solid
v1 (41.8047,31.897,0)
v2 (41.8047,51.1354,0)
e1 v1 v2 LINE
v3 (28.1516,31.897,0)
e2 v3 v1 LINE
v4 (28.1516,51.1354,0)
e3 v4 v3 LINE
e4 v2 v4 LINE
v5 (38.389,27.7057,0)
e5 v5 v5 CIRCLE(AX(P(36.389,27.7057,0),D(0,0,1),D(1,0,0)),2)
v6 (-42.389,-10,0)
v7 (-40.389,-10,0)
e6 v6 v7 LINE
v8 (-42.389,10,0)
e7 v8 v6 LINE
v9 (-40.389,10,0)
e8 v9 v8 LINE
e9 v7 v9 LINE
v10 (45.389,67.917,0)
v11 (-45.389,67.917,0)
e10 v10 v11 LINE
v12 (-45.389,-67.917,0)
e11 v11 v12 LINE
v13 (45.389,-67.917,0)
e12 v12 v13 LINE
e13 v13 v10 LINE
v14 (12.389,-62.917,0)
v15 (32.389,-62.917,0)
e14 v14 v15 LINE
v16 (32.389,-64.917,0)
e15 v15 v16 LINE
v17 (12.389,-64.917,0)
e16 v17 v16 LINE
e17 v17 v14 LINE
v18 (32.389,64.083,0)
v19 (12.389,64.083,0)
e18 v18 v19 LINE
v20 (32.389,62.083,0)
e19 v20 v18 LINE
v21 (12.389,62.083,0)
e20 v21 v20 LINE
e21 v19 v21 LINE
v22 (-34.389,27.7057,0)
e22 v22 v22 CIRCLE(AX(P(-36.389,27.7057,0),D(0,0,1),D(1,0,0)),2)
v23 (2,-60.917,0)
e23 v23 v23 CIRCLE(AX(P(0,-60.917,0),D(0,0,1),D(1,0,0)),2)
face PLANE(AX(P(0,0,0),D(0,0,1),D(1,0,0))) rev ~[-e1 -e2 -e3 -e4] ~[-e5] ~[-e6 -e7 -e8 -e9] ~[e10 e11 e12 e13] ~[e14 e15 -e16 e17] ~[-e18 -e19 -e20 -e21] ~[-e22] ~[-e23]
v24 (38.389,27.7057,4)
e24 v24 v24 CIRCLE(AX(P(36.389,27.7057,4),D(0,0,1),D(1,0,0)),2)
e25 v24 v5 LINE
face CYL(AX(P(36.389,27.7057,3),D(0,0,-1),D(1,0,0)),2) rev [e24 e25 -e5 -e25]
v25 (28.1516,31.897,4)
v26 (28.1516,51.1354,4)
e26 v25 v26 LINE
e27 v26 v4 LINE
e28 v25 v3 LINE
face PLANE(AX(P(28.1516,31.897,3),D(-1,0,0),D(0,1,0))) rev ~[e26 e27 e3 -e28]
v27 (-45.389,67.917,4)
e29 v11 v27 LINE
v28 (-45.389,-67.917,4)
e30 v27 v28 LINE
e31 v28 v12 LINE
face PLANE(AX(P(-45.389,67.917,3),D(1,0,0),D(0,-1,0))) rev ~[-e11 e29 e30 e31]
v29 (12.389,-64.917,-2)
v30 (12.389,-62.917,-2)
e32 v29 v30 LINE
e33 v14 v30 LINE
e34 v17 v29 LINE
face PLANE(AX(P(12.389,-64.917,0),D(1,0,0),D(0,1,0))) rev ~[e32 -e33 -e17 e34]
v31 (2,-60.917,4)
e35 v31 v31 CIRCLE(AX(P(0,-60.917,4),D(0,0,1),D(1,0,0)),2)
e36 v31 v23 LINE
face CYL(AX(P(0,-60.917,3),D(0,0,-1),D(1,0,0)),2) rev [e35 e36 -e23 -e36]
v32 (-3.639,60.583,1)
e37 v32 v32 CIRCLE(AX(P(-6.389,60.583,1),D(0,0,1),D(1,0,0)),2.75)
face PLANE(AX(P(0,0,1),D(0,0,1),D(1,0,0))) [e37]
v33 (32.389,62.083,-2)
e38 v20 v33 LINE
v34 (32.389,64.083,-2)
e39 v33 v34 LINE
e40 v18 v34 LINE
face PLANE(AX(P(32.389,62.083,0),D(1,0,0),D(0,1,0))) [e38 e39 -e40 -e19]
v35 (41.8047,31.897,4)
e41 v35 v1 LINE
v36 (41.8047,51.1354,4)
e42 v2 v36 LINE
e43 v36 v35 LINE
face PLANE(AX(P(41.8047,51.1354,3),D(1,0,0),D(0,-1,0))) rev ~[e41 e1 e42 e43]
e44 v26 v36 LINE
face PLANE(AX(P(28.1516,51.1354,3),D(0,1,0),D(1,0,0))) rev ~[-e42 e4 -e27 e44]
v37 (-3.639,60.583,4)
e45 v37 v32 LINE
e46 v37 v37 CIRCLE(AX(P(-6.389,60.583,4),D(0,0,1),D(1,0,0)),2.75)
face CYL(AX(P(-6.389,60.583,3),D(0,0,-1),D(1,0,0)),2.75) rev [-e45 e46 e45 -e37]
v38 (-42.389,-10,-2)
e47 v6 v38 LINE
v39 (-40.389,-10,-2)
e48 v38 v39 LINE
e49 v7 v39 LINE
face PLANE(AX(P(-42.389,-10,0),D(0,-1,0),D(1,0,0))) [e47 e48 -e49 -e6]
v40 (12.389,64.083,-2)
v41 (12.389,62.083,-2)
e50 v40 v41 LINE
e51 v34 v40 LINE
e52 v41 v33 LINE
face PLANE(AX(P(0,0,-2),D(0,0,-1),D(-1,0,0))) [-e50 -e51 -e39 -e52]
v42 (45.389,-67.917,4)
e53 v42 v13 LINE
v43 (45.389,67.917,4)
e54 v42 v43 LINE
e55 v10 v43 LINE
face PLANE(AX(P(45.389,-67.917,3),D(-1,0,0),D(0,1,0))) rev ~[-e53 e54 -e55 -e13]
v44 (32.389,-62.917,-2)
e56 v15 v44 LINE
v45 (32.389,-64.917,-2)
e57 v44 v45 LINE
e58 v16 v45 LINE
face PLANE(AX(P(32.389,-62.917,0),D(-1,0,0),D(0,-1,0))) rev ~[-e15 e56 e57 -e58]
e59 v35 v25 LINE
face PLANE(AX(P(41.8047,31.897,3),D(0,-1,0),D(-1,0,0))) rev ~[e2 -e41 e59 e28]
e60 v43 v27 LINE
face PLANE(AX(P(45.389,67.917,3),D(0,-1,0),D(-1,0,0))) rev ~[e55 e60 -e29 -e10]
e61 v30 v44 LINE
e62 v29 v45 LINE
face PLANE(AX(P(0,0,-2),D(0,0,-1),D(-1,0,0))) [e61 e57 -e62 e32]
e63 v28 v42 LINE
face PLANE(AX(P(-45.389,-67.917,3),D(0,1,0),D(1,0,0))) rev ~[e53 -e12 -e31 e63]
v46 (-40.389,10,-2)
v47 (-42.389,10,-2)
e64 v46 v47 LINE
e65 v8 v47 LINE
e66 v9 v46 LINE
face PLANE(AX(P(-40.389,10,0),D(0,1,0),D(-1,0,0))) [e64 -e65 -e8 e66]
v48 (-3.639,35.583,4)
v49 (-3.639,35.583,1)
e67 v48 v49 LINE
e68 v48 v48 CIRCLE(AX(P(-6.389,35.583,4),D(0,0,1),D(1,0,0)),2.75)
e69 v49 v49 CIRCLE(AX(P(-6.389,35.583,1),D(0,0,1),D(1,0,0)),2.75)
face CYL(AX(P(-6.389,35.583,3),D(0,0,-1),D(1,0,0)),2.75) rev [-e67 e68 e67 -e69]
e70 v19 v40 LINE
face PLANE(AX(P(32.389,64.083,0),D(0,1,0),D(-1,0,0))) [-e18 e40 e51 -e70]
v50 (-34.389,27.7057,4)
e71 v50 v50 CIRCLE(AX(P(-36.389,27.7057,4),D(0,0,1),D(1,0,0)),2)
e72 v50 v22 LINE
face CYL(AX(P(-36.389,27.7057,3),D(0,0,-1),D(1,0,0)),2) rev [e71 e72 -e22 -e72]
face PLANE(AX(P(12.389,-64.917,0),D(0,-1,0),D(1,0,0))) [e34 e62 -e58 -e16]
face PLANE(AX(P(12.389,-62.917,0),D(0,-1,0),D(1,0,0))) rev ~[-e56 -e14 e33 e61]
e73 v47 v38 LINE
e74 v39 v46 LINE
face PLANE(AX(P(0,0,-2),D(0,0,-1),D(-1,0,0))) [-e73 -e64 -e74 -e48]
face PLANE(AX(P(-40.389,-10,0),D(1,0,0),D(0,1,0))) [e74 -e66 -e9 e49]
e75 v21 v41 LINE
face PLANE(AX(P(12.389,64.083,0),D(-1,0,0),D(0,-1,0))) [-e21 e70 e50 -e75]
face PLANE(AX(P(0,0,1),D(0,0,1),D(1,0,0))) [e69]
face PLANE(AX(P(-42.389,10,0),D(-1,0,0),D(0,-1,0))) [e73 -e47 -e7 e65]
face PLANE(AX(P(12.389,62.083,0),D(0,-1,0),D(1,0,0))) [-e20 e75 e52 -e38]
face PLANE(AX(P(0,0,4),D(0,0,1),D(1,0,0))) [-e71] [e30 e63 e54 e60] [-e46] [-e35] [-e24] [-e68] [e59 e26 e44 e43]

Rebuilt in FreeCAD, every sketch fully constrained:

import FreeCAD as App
import Part
import Sketcher

V = App.Vector


def add_polygon(sketch, points):
    """Adds a closed chain of lines whose ends are joined by coincident constraints."""
    first, n = sketch.GeometryCount, len(points)
    for a, b in zip(points, points[1:] + points[:1]):
        sketch.addGeometry(Part.LineSegment(App.Vector(*a, 0), App.Vector(*b, 0)), False)
    for i in range(n):
        sketch.addConstraint(Sketcher.Constraint("Coincident", first + i, 2, first + (i + 1) % n, 1))

doc = App.newDocument("Part")
body = doc.addObject("PartDesign::Body", "Body")

sketch1 = body.newObject("Sketcher::SketchObject", "Sketch")
sketch1.AttachmentSupport = (doc.getObject("XY_Plane"), [""])
sketch1.MapMode = "FlatFace"
add_polygon(sketch1, [(-45.4, -67.9), (45.4, -67.9), (45.4, 67.9), (-45.4, 67.9)])
add_polygon(sketch1, [(28.2, 51.1), (41.8, 51.1), (41.8, 31.9), (28.2, 31.9)])
sketch1.addGeometry(Part.Circle(V(0, -60.9, 0), V(0, 0, 1), 2), False)
sketch1.addGeometry(Part.Circle(V(-36.4, 27.7, 0), V(0, 0, 1), 2), False)
sketch1.addGeometry(Part.Circle(V(36.4, 27.7, 0), V(0, 0, 1), 2), False)
sketch1.addConstraint([
    Sketcher.Constraint("Horizontal", 0),
    Sketcher.Constraint("Vertical", 1),
    Sketcher.Constraint("Horizontal", 2),
    Sketcher.Constraint("Vertical", 3),
    Sketcher.Constraint("Horizontal", 4),
    Sketcher.Constraint("Vertical", 5),
    Sketcher.Constraint("Horizontal", 6),
    Sketcher.Constraint("Vertical", 7),
    Sketcher.Constraint("Equal", 8, 9),
    Sketcher.Constraint("Equal", 9, 10),
    Sketcher.Constraint("Symmetric", 0, 2, 2, 2, -1, 1),
    Sketcher.Constraint("Symmetric", 9, 3, 10, 3, -2),
    Sketcher.Constraint("PointOnObject", 8, 3, -2),
    Sketcher.Constraint("Diameter", 8, 4.0),
    Sketcher.Constraint("DistanceY", 0, 2, 8, 3, 7.0),
    Sketcher.Constraint("DistanceX", 10, 3, 0, 2, 9.0),
    Sketcher.Constraint("DistanceX", 0, 1, 0, 2, 90.778),
    Sketcher.Constraint("DistanceX", 4, 1, 4, 2, 13.653),
    Sketcher.Constraint("DistanceY", 1, 1, 1, 2, 135.834),
    Sketcher.Constraint("DistanceY", 5, 2, 1, 2, 36.02),
    Sketcher.Constraint("DistanceY", 5, 2, 5, 1, 19.2384),
    Sketcher.Constraint("DistanceY", -1, 1, 9, 3, 27.7057),
    Sketcher.Constraint("DistanceX", -1, 1, 4, 2, 41.8047),
])
pad1 = body.newObject("PartDesign::Pad", "Pad")
pad1.Profile = sketch1
pad1.Length = 3

sketch2 = body.newObject("Sketcher::SketchObject", "Sketch001")
sketch2.AttachmentSupport = (doc.getObject("XY_Plane"), [""])
sketch2.MapMode = "FlatFace"
add_polygon(sketch2, [(32.4, -64.9), (12.4, -64.9), (12.4, -62.9), (32.4, -62.9)])
add_polygon(sketch2, [(-40.4, -10), (-42.4, -10), (-42.4, 10), (-40.4, 10)])
add_polygon(sketch2, [(12.4, 64.1), (32.4, 64.1), (32.4, 62.1), (12.4, 62.1)])
sketch2.addConstraint([
    Sketcher.Constraint("Horizontal", 0),
    Sketcher.Constraint("Vertical", 1),
    Sketcher.Constraint("Horizontal", 2),
    Sketcher.Constraint("Vertical", 3),
    Sketcher.Constraint("Horizontal", 4),
    Sketcher.Constraint("Vertical", 5),
    Sketcher.Constraint("Horizontal", 6),
    Sketcher.Constraint("Vertical", 7),
    Sketcher.Constraint("Horizontal", 8),
    Sketcher.Constraint("Vertical", 9),
    Sketcher.Constraint("Horizontal", 10),
    Sketcher.Constraint("Vertical", 11),
    Sketcher.Constraint("Vertical", 3, 2, 8, 2),
    Sketcher.Constraint("Vertical", 1, 2, 10, 2),
    Sketcher.Constraint("Equal", 6, 1),
    Sketcher.Constraint("Equal", 10, 5),
    Sketcher.Constraint("Equal", 3, 9),
    Sketcher.Constraint("DistanceX", 0, 2, 0, 1, 20.0),
    Sketcher.Constraint("DistanceX", 4, 2, 4, 1, 2.0),
    Sketcher.Constraint("DistanceY", 4, 2, -1, 1, 10.0),
    Sketcher.Constraint("DistanceY", 2, 2, 8, 2, 127.0),
    Sketcher.Constraint("DistanceX", -1, 1, 0, 2, 12.389),
    Sketcher.Constraint("DistanceY", 0, 2, -1, 1, 64.917),
    Sketcher.Constraint("DistanceX", 4, 2, -1, 1, 42.389),
])
pad2 = body.newObject("PartDesign::Pad", "Pad001")
pad2.Profile = sketch2
pad2.Length = 2
pad2.Reversed = True

sketch3 = body.newObject("Sketcher::SketchObject", "Sketch002")
sketch3.AttachmentSupport = (doc.getObject("XY_Plane"), [""])
sketch3.MapMode = "FlatFace"
sketch3.AttachmentOffset = App.Placement(V(0, 0, 3), App.Rotation())
sketch3.addGeometry([
    Part.Circle(V(-6.4, 60.6, 0), V(0, 0, 1), 2.8),
    Part.Circle(V(-6.4, 35.6, 0), V(0, 0, 1), 2.8),
], False)
sketch3.addConstraint([
    Sketcher.Constraint("Equal", 0, 1),
    Sketcher.Constraint("Vertical", 0, 3, 1, 3),
    Sketcher.Constraint("Diameter", 0, 5.5),
    Sketcher.Constraint("DistanceY", 1, 3, 0, 3, 25.0),
    Sketcher.Constraint("DistanceX", 0, 3, -1, 1, 6.389),
    Sketcher.Constraint("DistanceY", -1, 1, 0, 3, 60.583),
])
pocket1 = body.newObject("PartDesign::Pocket", "Pocket")
pocket1.Profile = sketch3
pocket1.Length = 2

sketch4 = body.newObject("Sketcher::SketchObject", "Sketch003")
sketch4.AttachmentSupport = (doc.getObject("XY_Plane"), [""])
sketch4.MapMode = "FlatFace"
sketch4.AttachmentOffset = App.Placement(V(0, 0, 3), App.Rotation())
add_polygon(sketch4, [(45.4, -67.9), (45.4, 67.9), (-45.4, 67.9), (-45.4, -67.9)])
sketch4.addGeometry(Part.Circle(V(0, -60.9, 0), V(0, 0, 1), 2), False)
sketch4.addGeometry(Part.Circle(V(-36.4, 27.7, 0), V(0, 0, 1), 2), False)
sketch4.addGeometry(Part.Circle(V(-6.4, 35.6, 0), V(0, 0, 1), 2.8), False)
sketch4.addGeometry(Part.Circle(V(-6.4, 60.6, 0), V(0, 0, 1), 2.8), False)
sketch4.addGeometry(Part.Circle(V(36.4, 27.7, 0), V(0, 0, 1), 2), False)
add_polygon(sketch4, [(28.2, 51.1), (41.8, 51.1), (41.8, 31.9), (28.2, 31.9)])
sketch4.addConstraint([
    Sketcher.Constraint("Vertical", 0),
    Sketcher.Constraint("Horizontal", 1),
    Sketcher.Constraint("Vertical", 2),
    Sketcher.Constraint("Horizontal", 3),
    Sketcher.Constraint("Horizontal", 9),
    Sketcher.Constraint("Vertical", 10),
    Sketcher.Constraint("Horizontal", 11),
    Sketcher.Constraint("Vertical", 12),
    Sketcher.Constraint("Equal", 4, 5),
    Sketcher.Constraint("Equal", 6, 7),
    Sketcher.Constraint("Equal", 5, 8),
    Sketcher.Constraint("Symmetric", 0, 2, 2, 2, -1, 1),
    Sketcher.Constraint("Symmetric", 5, 3, 8, 3, -2),
    Sketcher.Constraint("PointOnObject", 4, 3, -2),
    Sketcher.Constraint("Vertical", 6, 3, 7, 3),
    Sketcher.Constraint("Diameter", 4, 4.0),
    Sketcher.Constraint("Diameter", 6, 5.5),
    Sketcher.Constraint("DistanceX", 5, 3, 6, 3, 30.0),
    Sketcher.Constraint("DistanceY", 6, 3, 7, 3, 25.0),
    Sketcher.Constraint("DistanceX", 8, 3, 0, 2, 9.0),
    Sketcher.Constraint("DistanceY", 2, 2, 4, 3, 7.0),
    Sketcher.Constraint("DistanceY", 4, 3, 6, 3, 96.5),
    Sketcher.Constraint("DistanceX", 1, 2, 1, 1, 90.778),
    Sketcher.Constraint("DistanceX", 9, 1, 9, 2, 13.653),
    Sketcher.Constraint("DistanceY", 0, 1, 0, 2, 135.834),
    Sketcher.Constraint("DistanceY", 10, 2, 0, 2, 36.02),
    Sketcher.Constraint("DistanceY", 10, 2, 10, 1, 19.2384),
    Sketcher.Constraint("DistanceY", -1, 1, 5, 3, 27.7057),
    Sketcher.Constraint("DistanceX", -1, 1, 9, 2, 41.8047),
])
pad3 = body.newObject("PartDesign::Pad", "Pad002")
pad3.Profile = sketch4
pad3.Length = 1

doc.recompute()
